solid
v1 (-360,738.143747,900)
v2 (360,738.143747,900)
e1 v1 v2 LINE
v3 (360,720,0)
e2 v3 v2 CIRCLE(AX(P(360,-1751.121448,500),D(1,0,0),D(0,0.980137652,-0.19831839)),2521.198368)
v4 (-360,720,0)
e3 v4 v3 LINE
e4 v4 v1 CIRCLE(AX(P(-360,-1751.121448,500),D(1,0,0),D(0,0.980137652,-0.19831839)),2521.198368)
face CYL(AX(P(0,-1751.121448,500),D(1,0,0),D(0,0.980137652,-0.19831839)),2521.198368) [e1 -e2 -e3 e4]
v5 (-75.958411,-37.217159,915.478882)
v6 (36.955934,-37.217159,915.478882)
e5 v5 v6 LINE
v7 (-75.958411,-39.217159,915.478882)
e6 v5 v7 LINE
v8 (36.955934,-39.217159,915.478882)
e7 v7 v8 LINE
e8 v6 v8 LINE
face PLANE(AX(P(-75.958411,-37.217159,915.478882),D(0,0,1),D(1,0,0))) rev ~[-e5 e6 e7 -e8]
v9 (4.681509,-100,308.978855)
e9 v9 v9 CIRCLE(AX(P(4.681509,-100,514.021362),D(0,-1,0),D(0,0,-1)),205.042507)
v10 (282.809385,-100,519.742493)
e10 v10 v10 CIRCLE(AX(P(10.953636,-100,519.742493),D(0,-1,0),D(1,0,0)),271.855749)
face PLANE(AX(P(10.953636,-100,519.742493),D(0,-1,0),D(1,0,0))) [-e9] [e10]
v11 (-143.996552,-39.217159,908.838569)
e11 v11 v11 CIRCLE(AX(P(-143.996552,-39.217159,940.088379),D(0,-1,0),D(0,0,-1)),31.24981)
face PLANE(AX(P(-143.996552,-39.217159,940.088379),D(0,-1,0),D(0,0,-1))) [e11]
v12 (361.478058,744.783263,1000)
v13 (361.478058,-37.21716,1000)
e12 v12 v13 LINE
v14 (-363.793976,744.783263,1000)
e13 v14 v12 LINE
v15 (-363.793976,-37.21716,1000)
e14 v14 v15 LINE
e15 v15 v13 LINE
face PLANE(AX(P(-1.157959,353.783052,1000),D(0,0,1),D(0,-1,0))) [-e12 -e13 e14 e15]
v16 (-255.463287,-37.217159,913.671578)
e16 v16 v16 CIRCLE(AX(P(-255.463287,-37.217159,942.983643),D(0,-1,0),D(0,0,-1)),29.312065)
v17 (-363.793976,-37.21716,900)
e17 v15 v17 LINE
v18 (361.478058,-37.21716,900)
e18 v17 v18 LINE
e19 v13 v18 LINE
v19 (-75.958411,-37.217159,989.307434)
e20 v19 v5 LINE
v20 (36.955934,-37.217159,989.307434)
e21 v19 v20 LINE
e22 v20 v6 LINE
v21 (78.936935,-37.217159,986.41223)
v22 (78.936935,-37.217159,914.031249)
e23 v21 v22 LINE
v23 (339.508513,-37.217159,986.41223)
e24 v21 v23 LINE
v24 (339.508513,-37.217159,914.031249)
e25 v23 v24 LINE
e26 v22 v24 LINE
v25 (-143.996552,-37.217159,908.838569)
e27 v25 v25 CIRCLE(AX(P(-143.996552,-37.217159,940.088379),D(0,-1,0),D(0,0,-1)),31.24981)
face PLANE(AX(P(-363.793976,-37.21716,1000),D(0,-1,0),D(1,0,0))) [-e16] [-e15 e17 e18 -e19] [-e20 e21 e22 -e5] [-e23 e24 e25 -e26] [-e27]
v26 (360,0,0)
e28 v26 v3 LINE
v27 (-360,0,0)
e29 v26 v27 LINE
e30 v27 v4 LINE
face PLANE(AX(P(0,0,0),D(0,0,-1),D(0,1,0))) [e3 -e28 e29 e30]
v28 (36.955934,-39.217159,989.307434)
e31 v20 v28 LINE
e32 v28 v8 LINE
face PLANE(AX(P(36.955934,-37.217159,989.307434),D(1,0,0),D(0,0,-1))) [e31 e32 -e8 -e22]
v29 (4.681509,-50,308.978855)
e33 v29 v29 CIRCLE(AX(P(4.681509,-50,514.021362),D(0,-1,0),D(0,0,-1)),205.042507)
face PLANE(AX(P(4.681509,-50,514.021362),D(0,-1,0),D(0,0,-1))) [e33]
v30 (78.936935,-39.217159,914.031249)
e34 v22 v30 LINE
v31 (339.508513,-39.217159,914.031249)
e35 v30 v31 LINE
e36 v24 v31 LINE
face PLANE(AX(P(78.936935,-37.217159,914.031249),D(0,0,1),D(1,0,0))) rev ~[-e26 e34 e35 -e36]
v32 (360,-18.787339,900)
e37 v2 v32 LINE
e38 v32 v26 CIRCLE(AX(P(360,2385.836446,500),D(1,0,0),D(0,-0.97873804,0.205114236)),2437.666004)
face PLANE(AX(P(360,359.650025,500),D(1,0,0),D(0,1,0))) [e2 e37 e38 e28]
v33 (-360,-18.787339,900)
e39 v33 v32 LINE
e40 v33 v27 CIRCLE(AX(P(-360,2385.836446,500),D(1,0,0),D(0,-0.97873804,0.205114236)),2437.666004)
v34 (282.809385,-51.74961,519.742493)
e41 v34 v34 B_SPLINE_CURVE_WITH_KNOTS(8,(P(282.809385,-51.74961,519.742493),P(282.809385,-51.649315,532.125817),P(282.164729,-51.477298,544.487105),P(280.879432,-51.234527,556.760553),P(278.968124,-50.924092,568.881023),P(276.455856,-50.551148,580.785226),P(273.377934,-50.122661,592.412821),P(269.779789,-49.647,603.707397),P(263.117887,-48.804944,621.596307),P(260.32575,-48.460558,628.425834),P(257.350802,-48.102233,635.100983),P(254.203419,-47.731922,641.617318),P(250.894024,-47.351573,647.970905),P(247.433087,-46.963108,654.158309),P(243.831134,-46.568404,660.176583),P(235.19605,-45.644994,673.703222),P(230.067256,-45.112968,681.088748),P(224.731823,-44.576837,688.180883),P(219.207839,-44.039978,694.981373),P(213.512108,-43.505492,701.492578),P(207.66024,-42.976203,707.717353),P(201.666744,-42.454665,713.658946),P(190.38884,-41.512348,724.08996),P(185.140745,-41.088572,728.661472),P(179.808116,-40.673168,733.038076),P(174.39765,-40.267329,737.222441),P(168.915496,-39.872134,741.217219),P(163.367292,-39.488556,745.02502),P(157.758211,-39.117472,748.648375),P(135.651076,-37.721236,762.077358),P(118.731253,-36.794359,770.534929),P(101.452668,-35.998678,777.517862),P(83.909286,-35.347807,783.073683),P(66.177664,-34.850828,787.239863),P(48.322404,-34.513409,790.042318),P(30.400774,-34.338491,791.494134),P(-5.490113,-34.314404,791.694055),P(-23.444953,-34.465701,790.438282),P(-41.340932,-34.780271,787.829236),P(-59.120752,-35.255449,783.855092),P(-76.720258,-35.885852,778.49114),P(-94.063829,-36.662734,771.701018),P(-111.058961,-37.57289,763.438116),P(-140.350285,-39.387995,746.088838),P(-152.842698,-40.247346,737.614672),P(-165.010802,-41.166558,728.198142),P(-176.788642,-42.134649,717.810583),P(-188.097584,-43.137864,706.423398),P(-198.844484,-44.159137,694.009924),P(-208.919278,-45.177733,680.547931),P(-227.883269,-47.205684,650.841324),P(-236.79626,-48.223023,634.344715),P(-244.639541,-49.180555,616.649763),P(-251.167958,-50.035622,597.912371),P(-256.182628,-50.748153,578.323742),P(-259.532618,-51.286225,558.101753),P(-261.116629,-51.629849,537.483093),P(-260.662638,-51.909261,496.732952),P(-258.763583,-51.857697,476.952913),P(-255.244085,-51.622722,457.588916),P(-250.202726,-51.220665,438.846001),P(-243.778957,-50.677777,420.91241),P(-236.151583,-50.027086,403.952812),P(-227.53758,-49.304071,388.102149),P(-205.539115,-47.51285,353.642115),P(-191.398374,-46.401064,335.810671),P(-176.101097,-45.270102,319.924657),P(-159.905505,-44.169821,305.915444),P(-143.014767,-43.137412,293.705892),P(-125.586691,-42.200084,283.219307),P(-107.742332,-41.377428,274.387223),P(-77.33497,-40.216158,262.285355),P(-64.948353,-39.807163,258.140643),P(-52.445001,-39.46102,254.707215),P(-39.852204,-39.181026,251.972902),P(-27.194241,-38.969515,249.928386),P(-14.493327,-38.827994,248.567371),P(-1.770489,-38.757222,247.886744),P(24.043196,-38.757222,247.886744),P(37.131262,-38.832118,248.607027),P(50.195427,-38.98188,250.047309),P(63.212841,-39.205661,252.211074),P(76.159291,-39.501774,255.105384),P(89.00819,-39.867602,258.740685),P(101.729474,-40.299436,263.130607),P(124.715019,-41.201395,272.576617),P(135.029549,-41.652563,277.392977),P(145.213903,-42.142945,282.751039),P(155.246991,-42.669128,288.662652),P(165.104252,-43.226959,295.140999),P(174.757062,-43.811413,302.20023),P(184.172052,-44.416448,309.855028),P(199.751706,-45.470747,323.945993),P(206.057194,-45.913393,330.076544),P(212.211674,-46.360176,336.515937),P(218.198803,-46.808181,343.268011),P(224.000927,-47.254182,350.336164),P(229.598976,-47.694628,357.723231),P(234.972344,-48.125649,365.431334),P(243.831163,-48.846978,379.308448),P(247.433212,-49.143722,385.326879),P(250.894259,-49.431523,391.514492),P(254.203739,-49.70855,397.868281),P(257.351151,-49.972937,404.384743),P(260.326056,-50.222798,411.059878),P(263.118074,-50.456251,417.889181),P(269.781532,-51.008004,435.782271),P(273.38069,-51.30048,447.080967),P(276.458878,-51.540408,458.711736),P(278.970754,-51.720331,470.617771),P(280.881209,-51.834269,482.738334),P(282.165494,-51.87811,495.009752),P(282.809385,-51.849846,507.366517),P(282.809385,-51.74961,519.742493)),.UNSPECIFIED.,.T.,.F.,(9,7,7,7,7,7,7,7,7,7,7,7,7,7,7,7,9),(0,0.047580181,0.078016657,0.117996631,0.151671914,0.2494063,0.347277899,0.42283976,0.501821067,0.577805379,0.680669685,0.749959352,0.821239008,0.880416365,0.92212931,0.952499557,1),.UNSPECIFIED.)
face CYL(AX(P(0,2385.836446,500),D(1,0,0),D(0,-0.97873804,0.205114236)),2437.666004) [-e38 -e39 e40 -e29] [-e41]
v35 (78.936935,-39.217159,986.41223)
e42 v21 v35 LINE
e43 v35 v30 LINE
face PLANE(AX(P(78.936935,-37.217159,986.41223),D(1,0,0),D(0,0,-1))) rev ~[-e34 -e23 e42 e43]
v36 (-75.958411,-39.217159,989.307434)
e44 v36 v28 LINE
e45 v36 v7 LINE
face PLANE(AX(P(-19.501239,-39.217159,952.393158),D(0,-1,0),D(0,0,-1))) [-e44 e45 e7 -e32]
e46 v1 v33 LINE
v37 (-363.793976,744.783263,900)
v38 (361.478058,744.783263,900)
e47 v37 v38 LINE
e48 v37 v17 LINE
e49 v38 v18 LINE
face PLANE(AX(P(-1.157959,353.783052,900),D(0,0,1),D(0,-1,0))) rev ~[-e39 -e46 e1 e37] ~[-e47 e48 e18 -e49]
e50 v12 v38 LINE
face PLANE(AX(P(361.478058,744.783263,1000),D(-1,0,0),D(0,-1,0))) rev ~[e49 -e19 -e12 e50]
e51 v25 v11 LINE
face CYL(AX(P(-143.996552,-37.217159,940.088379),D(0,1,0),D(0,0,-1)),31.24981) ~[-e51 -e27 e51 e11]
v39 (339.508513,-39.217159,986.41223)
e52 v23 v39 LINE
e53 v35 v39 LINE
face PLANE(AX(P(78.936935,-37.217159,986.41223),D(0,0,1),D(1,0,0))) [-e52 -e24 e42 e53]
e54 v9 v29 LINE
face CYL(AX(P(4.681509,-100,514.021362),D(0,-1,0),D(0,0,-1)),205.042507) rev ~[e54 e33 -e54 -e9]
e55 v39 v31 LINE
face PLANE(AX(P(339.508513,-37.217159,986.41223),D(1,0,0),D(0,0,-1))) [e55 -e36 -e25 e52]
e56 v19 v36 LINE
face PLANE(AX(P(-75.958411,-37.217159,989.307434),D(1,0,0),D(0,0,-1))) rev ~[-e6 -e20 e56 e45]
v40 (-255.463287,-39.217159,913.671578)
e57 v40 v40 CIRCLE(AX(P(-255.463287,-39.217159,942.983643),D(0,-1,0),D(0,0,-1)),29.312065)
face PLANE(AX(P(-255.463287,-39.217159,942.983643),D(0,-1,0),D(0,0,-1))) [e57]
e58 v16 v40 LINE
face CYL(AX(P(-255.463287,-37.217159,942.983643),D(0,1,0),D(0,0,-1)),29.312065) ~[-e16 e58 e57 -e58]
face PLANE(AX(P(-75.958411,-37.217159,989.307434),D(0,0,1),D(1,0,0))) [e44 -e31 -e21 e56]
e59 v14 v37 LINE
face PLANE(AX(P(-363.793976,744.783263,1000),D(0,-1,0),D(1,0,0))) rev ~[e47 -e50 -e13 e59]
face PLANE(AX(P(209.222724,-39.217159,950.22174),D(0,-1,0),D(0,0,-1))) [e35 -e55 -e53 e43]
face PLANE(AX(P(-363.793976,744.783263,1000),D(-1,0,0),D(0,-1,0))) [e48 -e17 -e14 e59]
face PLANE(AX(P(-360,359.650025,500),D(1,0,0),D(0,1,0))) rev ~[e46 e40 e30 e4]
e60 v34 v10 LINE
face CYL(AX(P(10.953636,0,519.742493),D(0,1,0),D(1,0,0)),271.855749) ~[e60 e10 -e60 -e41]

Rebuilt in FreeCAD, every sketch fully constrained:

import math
import FreeCAD as App
import Part
import Sketcher

V = App.Vector

doc = App.newDocument("Part")
body = doc.addObject("PartDesign::Body", "Body")

# Sketch on YZ plane
sketch1 = doc.addObject("Sketcher::SketchObject", "Sketch")
body.addObject(sketch1)
sketch1.AttachmentSupport = (doc.YZ_Plane, [""])
sketch1.MapMode = "FlatFace"
sketch1.addGeometry(Part.LineSegment(V(0, 0, 0), V(720, 0, 0)), False)
sketch1.addGeometry(Part.ArcOfCircle(Part.Circle(V(-1751.121448, 500, 0), V(0, 0, 1), 2521.198368), math.radians(-11.43864), math.radians(11.43864)), False)
sketch1.addGeometry(Part.LineSegment(V(720, 1000, 0), V(0, 1000, 0)), False)
sketch1.addGeometry(Part.ArcOfCircle(Part.Circle(V(2385.836446, 500, 0), V(0, 0, 1), 2437.666004), math.radians(168.163814), math.radians(191.836186)), False)
sketch1.addConstraint(Sketcher.Constraint("Coincident", 0, 2, 1, 1))
sketch1.addConstraint(Sketcher.Constraint("Coincident", 1, 2, 2, 1))
sketch1.addConstraint(Sketcher.Constraint("Coincident", 2, 2, 3, 1))
sketch1.addConstraint(Sketcher.Constraint("Coincident", 3, 2, 0, 1))
sketch1.addConstraint(Sketcher.Constraint("Horizontal", 0))
sketch1.addConstraint(Sketcher.Constraint("Horizontal", 2))
sketch1.addConstraint(Sketcher.Constraint("PointOnObject", 0, 2, -1))
sketch1.addConstraint(Sketcher.Constraint("PointOnObject", 2, 2, -2))
sketch1.addConstraint(Sketcher.Constraint("Horizontal", 1, 3, 3, 3))
sketch1.addConstraint(Sketcher.Constraint("Equal", 0, 2))
sketch1.addConstraint(Sketcher.Constraint("DistanceX", 0, 1, 0, 2, 720.0))
sketch1.addConstraint(Sketcher.Constraint("DistanceY", -1, 1, 1, 3, 500.0))
sketch1.addConstraint(Sketcher.Constraint("Radius", 1, 2521.198368))
sketch1.addConstraint(Sketcher.Constraint("Radius", 3, 2437.666004))
pad1 = doc.addObject("PartDesign::Pad", "Pad")
body.addObject(pad1)
pad1.Profile = sketch1
pad1.Type = "TwoLengths"
pad1.Length = 360
pad1.Length2 = 360

# Sketch on XZ plane
sketch2 = doc.addObject("Sketcher::SketchObject", "Sketch001")
body.addObject(sketch2)
sketch2.AttachmentSupport = (doc.XZ_Plane, [""])
sketch2.MapMode = "FlatFace"
sketch2.addGeometry(Part.Circle(V(10.953636, 519.742493, 0), V(0, 0, 1), 271.855749), False)
sketch2.addConstraint(Sketcher.Constraint("Diameter", 0, 543.711498))
sketch2.addConstraint(Sketcher.Constraint("DistanceX", -1, 1, 0, 3, 10.953636))
sketch2.addConstraint(Sketcher.Constraint("DistanceY", -1, 1, 0, 3, 519.742493))
pad2 = doc.addObject("PartDesign::Pad", "Pad001")
body.addObject(pad2)
pad2.Profile = sketch2
pad2.Length = 100

# Sketch on XZ plane
sketch3 = doc.addObject("Sketcher::SketchObject", "Sketch002")
body.addObject(sketch3)
sketch3.AttachmentSupport = (doc.XZ_Plane, [""])
sketch3.MapMode = "FlatFace"
sketch3.AttachmentOffset = App.Placement(V(0, 0, 100), App.Rotation())
sketch3.addGeometry(Part.Circle(V(4.681509, 514.021362, 0), V(0, 0, 1), 205.042507), False)
sketch3.addConstraint(Sketcher.Constraint("Diameter", 0, 410.085014))
sketch3.addConstraint(Sketcher.Constraint("DistanceX", -1, 1, 0, 3, 4.681509))
sketch3.addConstraint(Sketcher.Constraint("DistanceY", -1, 1, 0, 3, 514.021362))
pocket1 = doc.addObject("PartDesign::Pocket", "Pocket")
body.addObject(pocket1)
pocket1.Profile = sketch3
pocket1.Length = 50

# Sketch on XY plane
sketch4 = doc.addObject("Sketcher::SketchObject", "Sketch003")
body.addObject(sketch4)
sketch4.AttachmentSupport = (doc.XY_Plane, [""])
sketch4.MapMode = "FlatFace"
sketch4.AttachmentOffset = App.Placement(V(0, 0, 1000), App.Rotation())
sketch4.addGeometry(Part.LineSegment(V(361.478058, 744.783263, 0), V(-363.793976, 744.783263, 0)), False)
sketch4.addGeometry(Part.LineSegment(V(-363.793976, 744.783263, 0), V(-363.793976, -37.21716, 0)), False)
sketch4.addGeometry(Part.LineSegment(V(-363.793976, -37.21716, 0), V(361.478058, -37.21716, 0)), False)
sketch4.addGeometry(Part.LineSegment(V(361.478058, -37.21716, 0), V(361.478058, 744.783263, 0)), False)
sketch4.addConstraint(Sketcher.Constraint("Coincident", 0, 2, 1, 1))
sketch4.addConstraint(Sketcher.Constraint("Coincident", 1, 2, 2, 1))
sketch4.addConstraint(Sketcher.Constraint("Coincident", 2, 2, 3, 1))
sketch4.addConstraint(Sketcher.Constraint("Coincident", 3, 2, 0, 1))
sketch4.addConstraint(Sketcher.Constraint("Horizontal", 0))
sketch4.addConstraint(Sketcher.Constraint("Vertical", 1))
sketch4.addConstraint(Sketcher.Constraint("Horizontal", 2))
sketch4.addConstraint(Sketcher.Constraint("Vertical", 3))
sketch4.addConstraint(Sketcher.Constraint("DistanceX", 0, 2, 0, 1, 725.272034))
sketch4.addConstraint(Sketcher.Constraint("DistanceY", 1, 2, 1, 1, 782.000423))
sketch4.addConstraint(Sketcher.Constraint("DistanceY", 1, 2, -1, 1, 37.21716))
sketch4.addConstraint(Sketcher.Constraint("DistanceX", 0, 2, -1, 1, 363.793976))
pad3 = doc.addObject("PartDesign::Pad", "Pad002")
body.addObject(pad3)
pad3.Profile = sketch4
pad3.Length = 100
pad3.Reversed = True

# Sketch on XZ plane
sketch5 = doc.addObject("Sketcher::SketchObject", "Sketch004")
body.addObject(sketch5)
sketch5.AttachmentSupport = (doc.XZ_Plane, [""])
sketch5.MapMode = "FlatFace"
sketch5.AttachmentOffset = App.Placement(V(0, 0, 37.217159), App.Rotation())
sketch5.addGeometry(Part.Circle(V(-255.463287, 942.983643, 0), V(0, 0, 1), 29.312065), False)
sketch5.addGeometry(Part.Circle(V(-143.996552, 940.088379, 0), V(0, 0, 1), 31.24981), False)
sketch5.addGeometry(Part.LineSegment(V(339.508513, 986.41223, 0), V(78.936935, 986.41223, 0)), False)
sketch5.addGeometry(Part.LineSegment(V(78.936935, 986.41223, 0), V(78.936935, 914.031249, 0)), False)
sketch5.addGeometry(Part.LineSegment(V(78.936935, 914.031249, 0), V(339.508513, 914.031249, 0)), False)
sketch5.addGeometry(Part.LineSegment(V(339.508513, 914.031249, 0), V(339.508513, 986.41223, 0)), False)
sketch5.addGeometry(Part.LineSegment(V(36.955934, 989.307434, 0), V(-75.958411, 989.307434, 0)), False)
sketch5.addGeometry(Part.LineSegment(V(-75.958411, 989.307434, 0), V(-75.958411, 915.478882, 0)), False)
sketch5.addGeometry(Part.LineSegment(V(-75.958411, 915.478882, 0), V(36.955934, 915.478882, 0)), False)
sketch5.addGeometry(Part.LineSegment(V(36.955934, 915.478882, 0), V(36.955934, 989.307434, 0)), False)
sketch5.addConstraint(Sketcher.Constraint("Coincident", 2, 2, 3, 1))
sketch5.addConstraint(Sketcher.Constraint("Coincident", 3, 2, 4, 1))
sketch5.addConstraint(Sketcher.Constraint("Coincident", 4, 2, 5, 1))
sketch5.addConstraint(Sketcher.Constraint("Coincident", 5, 2, 2, 1))
sketch5.addConstraint(Sketcher.Constraint("Coincident", 6, 2, 7, 1))
sketch5.addConstraint(Sketcher.Constraint("Coincident", 7, 2, 8, 1))
sketch5.addConstraint(Sketcher.Constraint("Coincident", 8, 2, 9, 1))
sketch5.addConstraint(Sketcher.Constraint("Coincident", 9, 2, 6, 1))
sketch5.addConstraint(Sketcher.Constraint("Horizontal", 2))
sketch5.addConstraint(Sketcher.Constraint("Vertical", 3))
sketch5.addConstraint(Sketcher.Constraint("Horizontal", 4))
sketch5.addConstraint(Sketcher.Constraint("Vertical", 5))
sketch5.addConstraint(Sketcher.Constraint("Horizontal", 6))
sketch5.addConstraint(Sketcher.Constraint("Vertical", 7))
sketch5.addConstraint(Sketcher.Constraint("Horizontal", 8))
sketch5.addConstraint(Sketcher.Constraint("Vertical", 9))
sketch5.addConstraint(Sketcher.Constraint("Diameter", 0, 58.62413))
sketch5.addConstraint(Sketcher.Constraint("Diameter", 1, 62.49962))
sketch5.addConstraint(Sketcher.Constraint("DistanceX", 8, 2, 3, 2, 41.981001))
sketch5.addConstraint(Sketcher.Constraint("DistanceX", 2, 2, 2, 1, 260.571579))
sketch5.addConstraint(Sketcher.Constraint("DistanceY", 3, 2, 3, 1, 72.380981))
sketch5.addConstraint(Sketcher.Constraint("DistanceY", 7, 2, 7, 1, 73.828552))
sketch5.addConstraint(Sketcher.Constraint("DistanceX", 0, 3, 4, 2, 594.9718))
sketch5.addConstraint(Sketcher.Constraint("DistanceX", 6, 2, 6, 1, 112.914345))
sketch5.addConstraint(Sketcher.Constraint("DistanceX", 1, 3, -1, 1, 143.996552))
sketch5.addConstraint(Sketcher.Constraint("DistanceY", -1, 1, 1, 3, 940.088379))
sketch5.addConstraint(Sketcher.Constraint("DistanceY", -1, 1, 2, 2, 986.41223))
sketch5.addConstraint(Sketcher.Constraint("DistanceX", 6, 2, -1, 1, 75.958411))
sketch5.addConstraint(Sketcher.Constraint("DistanceY", -1, 1, 7, 2, 915.478882))
sketch5.addConstraint(Sketcher.Constraint("DistanceY", 0, 3, 6, 2, 46.323791))
pad4 = doc.addObject("PartDesign::Pad", "Pad003")
body.addObject(pad4)
pad4.Profile = sketch5
pad4.Length = 2

doc.recompute()
